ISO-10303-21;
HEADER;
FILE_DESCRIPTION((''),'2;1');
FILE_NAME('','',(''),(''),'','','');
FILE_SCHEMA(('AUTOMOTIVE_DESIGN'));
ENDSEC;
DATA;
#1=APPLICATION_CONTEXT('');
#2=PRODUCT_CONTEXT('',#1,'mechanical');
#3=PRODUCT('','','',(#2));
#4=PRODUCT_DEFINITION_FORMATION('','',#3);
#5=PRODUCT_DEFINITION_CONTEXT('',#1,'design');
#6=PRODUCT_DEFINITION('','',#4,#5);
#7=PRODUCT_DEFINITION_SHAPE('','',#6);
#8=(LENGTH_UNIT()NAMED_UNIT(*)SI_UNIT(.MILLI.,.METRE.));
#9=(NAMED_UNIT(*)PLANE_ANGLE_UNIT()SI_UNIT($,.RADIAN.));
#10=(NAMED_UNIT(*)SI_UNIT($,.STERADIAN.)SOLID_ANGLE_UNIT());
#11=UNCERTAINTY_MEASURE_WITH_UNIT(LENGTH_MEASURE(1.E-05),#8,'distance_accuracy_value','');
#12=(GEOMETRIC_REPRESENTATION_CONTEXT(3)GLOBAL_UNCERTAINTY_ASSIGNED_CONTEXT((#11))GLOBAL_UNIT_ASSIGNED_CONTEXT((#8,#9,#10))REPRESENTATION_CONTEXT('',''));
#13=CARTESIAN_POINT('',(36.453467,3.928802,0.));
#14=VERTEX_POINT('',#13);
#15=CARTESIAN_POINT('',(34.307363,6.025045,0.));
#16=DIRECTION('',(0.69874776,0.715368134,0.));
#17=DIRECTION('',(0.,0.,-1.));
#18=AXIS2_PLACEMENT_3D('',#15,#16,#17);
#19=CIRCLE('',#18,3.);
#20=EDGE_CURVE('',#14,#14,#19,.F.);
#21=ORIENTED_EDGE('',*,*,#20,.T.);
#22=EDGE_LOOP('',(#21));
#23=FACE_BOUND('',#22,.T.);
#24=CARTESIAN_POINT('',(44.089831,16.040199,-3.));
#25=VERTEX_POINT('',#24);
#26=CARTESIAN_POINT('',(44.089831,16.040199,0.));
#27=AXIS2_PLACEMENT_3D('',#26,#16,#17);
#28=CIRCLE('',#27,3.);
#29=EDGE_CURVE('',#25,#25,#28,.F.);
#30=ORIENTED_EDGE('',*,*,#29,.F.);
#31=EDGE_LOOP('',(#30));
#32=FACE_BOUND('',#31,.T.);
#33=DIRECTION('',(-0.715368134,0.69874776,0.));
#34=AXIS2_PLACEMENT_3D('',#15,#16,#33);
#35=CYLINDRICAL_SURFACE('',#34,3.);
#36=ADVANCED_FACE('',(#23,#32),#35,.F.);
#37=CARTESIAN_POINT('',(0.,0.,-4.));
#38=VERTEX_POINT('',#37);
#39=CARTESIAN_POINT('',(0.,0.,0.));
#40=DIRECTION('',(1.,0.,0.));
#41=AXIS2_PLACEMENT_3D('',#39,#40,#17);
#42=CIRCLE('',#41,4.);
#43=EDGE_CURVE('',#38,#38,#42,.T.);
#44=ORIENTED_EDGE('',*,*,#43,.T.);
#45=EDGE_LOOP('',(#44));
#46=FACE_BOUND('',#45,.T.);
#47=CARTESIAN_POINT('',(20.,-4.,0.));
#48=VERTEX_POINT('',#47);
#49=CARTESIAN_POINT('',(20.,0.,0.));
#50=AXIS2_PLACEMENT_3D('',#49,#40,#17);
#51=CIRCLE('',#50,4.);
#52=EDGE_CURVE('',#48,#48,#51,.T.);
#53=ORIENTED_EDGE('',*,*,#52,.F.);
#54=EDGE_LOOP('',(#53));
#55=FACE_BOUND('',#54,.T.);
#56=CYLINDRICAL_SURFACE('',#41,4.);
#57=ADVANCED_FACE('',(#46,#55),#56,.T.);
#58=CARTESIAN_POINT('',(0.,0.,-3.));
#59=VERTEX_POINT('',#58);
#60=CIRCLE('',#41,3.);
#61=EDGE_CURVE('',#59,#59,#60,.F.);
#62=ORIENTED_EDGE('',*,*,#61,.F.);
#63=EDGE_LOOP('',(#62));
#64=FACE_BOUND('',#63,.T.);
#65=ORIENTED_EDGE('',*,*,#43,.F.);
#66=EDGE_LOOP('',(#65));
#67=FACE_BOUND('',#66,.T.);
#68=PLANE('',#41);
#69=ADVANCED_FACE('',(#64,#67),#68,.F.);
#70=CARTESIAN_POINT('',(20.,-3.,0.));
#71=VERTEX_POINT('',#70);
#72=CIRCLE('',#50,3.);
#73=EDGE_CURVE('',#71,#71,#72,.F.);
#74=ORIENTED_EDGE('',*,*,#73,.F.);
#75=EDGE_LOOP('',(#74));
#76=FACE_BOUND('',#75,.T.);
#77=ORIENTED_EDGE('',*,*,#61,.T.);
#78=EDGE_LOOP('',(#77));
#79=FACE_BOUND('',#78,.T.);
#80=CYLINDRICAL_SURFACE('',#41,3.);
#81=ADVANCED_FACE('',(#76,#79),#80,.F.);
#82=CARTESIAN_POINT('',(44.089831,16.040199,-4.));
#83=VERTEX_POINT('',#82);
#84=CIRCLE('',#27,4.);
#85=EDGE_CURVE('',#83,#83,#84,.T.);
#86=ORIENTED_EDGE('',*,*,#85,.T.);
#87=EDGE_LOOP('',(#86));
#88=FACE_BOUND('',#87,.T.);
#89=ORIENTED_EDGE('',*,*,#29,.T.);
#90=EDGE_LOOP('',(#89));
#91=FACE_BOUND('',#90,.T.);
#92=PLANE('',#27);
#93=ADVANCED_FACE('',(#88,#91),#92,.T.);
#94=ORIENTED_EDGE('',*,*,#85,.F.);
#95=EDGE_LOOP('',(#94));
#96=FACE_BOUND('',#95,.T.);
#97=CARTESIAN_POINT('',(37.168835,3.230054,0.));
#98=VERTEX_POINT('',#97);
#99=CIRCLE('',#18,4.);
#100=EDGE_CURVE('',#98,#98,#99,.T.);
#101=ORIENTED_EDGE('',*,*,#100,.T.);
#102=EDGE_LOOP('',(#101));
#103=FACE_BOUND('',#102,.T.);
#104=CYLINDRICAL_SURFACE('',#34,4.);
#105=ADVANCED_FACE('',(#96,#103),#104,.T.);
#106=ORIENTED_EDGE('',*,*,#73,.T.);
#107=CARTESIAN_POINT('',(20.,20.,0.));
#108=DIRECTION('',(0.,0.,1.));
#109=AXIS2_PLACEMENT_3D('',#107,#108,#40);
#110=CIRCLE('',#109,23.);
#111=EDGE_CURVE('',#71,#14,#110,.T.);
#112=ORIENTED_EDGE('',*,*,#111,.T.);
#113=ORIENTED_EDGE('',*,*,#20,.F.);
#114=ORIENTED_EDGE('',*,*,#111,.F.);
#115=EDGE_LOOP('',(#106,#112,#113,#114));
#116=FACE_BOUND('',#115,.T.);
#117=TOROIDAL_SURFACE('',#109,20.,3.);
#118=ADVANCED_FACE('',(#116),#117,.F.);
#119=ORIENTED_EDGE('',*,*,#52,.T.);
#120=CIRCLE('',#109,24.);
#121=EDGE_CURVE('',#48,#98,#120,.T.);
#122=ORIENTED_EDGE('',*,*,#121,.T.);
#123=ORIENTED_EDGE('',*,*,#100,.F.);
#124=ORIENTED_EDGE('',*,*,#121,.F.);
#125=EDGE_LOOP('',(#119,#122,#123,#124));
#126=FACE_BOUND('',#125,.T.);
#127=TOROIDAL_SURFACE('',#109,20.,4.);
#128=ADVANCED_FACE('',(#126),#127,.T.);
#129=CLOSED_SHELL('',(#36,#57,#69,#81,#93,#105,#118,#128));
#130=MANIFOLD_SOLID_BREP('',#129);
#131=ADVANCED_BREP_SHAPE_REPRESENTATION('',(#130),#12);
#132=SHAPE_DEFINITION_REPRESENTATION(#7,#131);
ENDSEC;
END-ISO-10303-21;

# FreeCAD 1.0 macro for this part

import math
import FreeCAD as App
import Part
import Sketcher
Q = App.Units.Quantity

doc = App.newDocument("Part")
body = doc.addObject("PartDesign::Body", "Body")

sketch1 = body.newObject("Sketcher::SketchObject", "Sketch")
sketch1.AttachmentSupport = (doc.getObject("YZ_Plane"), [""])
sketch1.MapMode = "FlatFace"
sketch1.addGeometry(Part.Circle(App.Vector(0, 0, 0), App.Vector(0, 0, 1), 4), False)
sketch1.addGeometry(Part.Circle(App.Vector(0, 0, 0), App.Vector(0, 0, 1), 3), False)
sketch1.addConstraint(Sketcher.Constraint("Coincident", 0, 3, -1, 1))
sketch1.addConstraint(Sketcher.Constraint("Coincident", 1, 3, -1, 1))
sketch1.addConstraint(Sketcher.Constraint("Diameter", 0, Q("8 mm")))
sketch1.addConstraint(Sketcher.Constraint("Diameter", 1, Q("6 mm")))

sketch2 = body.newObject("Sketcher::SketchObject", "Sketch001")
sketch2.AttachmentSupport = (doc.getObject("XY_Plane"), [""])
sketch2.MapMode = "FlatFace"
sketch2.addGeometry(Part.LineSegment(App.Vector(0, 0, 0), App.Vector(20, 0, 0)), False)
sketch2.addGeometry(Part.ArcOfCircle(Part.Circle(App.Vector(20, 20, 0), App.Vector(0, 0, 1), 20), math.radians(-90), math.radians(-44)), False)
sketch2.addGeometry(Part.LineSegment(App.Vector(34, 6, 0), App.Vector(44, 16, 0)), False)
sketch2.addConstraint(Sketcher.Constraint("Tangent", 0, 2, 1, 1))
sketch2.addConstraint(Sketcher.Constraint("Tangent", 1, 2, 2, 1))
sketch2.addConstraint(Sketcher.Constraint("Horizontal", 0))
sketch2.addConstraint(Sketcher.Constraint("Coincident", 0, 1, -1, 1))
sketch2.addConstraint(Sketcher.Constraint("Radius", 1, Q("20 mm")))
sketch2.addConstraint(Sketcher.Constraint("DistanceX", 0, 1, 0, 2, Q("20 mm")))
sketch2.addConstraint(Sketcher.Constraint("Distance", 2, Q("14 mm")))
sketch2.addConstraint(Sketcher.Constraint("DistanceY", -1, 1, 2, 2, Q("16.040199 mm")))
doc.recompute()

additivepipe = body.newObject("PartDesign::AdditivePipe", "AdditivePipe")
additivepipe.Profile = sketch1
additivepipe.Spine = (sketch2, ["Edge1", "Edge2", "Edge3"])

doc.recompute()
